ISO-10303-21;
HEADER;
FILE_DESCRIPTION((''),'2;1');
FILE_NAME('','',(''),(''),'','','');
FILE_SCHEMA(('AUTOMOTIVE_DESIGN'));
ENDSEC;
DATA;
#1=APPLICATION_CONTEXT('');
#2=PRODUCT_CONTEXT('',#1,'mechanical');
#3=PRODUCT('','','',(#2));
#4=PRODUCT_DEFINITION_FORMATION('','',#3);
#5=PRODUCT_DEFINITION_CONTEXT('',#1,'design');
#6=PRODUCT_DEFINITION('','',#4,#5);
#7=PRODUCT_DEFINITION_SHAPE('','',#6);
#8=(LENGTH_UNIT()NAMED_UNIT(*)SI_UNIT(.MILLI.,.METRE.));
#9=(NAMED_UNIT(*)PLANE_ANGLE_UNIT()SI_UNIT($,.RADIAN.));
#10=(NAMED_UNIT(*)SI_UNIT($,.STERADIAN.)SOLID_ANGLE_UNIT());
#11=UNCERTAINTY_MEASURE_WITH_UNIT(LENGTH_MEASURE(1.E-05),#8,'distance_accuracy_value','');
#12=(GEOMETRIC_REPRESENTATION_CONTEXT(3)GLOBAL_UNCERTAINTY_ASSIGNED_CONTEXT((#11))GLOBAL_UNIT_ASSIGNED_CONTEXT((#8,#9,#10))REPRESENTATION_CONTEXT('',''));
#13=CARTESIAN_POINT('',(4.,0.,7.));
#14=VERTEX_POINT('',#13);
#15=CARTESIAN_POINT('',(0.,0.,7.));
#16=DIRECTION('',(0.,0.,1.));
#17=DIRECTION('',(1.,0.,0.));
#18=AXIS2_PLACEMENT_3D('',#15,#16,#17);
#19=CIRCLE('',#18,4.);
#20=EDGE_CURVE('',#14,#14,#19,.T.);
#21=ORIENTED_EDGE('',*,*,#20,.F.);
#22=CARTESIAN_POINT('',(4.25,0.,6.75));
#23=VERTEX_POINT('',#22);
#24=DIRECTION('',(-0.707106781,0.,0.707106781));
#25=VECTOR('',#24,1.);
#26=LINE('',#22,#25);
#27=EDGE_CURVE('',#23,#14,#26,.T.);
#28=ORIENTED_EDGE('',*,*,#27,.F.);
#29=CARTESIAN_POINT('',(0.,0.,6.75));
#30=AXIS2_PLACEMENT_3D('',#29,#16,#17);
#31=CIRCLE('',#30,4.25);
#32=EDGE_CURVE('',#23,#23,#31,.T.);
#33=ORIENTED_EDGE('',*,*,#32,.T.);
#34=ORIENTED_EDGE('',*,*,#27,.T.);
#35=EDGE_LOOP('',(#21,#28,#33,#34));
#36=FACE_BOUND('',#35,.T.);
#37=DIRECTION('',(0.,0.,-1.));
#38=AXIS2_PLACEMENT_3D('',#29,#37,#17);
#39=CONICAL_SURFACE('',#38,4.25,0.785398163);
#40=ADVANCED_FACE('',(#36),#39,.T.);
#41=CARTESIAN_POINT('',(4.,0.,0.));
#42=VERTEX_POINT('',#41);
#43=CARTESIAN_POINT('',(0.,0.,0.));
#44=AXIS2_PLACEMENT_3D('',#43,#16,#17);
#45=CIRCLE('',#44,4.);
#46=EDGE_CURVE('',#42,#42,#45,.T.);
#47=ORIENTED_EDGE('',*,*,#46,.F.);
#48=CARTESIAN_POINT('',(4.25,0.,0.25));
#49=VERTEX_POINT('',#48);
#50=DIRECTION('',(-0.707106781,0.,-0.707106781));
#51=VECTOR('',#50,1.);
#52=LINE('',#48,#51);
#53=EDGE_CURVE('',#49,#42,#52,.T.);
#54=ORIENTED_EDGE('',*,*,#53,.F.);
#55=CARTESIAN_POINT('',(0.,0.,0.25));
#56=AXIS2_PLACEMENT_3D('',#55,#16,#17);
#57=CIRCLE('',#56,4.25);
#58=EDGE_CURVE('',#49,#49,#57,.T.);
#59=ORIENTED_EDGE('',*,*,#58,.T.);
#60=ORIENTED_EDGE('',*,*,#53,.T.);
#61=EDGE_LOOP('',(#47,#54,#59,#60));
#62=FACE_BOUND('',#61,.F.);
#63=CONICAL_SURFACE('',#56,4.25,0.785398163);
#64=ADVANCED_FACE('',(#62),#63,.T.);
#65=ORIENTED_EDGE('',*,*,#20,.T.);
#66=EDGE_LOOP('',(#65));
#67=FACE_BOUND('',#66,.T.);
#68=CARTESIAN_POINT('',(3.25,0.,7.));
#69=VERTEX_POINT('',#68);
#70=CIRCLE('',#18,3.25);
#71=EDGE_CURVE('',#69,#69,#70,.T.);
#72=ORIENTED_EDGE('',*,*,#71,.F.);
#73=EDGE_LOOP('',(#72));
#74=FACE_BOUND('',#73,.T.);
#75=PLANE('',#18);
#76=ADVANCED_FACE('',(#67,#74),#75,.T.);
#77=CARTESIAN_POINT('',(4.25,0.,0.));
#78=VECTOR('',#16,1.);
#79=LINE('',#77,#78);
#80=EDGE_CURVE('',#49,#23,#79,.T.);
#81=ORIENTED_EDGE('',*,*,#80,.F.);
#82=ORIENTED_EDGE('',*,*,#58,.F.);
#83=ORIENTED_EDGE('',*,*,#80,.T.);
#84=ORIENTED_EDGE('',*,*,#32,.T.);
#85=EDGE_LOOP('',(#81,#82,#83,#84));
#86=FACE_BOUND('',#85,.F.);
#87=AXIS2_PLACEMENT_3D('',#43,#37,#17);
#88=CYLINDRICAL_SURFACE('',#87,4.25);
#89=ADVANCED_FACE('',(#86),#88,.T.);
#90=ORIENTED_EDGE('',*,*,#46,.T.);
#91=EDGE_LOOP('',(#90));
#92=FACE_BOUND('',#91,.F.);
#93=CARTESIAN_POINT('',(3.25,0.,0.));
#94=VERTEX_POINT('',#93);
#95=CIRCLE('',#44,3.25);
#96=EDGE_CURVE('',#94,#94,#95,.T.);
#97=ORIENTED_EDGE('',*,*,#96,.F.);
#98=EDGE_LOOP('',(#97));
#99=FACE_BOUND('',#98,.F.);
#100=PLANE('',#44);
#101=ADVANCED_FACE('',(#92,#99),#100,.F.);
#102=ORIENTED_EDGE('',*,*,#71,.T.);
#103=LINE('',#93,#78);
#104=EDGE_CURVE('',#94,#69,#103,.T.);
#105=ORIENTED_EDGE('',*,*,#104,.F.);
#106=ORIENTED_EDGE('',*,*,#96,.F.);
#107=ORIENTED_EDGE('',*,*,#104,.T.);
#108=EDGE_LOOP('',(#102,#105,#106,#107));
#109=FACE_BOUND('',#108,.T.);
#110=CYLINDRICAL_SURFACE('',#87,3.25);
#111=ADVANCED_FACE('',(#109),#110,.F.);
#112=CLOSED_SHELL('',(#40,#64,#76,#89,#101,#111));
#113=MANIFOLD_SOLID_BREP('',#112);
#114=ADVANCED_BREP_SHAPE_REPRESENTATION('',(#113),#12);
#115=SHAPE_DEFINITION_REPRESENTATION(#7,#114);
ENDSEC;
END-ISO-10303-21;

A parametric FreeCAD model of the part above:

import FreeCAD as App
import Part
import Sketcher
from FreeCAD import Vector


def edges_at(feature, points):
    """Names of the edges that pass closest to the given points."""
    edges = feature.Shape.Edges
    near = lambda p: min(range(len(edges)), key=lambda i: edges[i].distToShape(Part.Vertex(*p))[0])
    return sorted({f"Edge{near(p) + 1}" for p in points})

doc = App.newDocument("Part")
body = doc.addObject("PartDesign::Body", "Body")

sketch1 = body.newObject("Sketcher::SketchObject", "Sketch")
sketch1.AttachmentSupport = (doc.getObject("XY_Plane"), [""])
sketch1.MapMode = "FlatFace"
sketch1.addGeometry([
    Part.Circle(Vector(0, 0, 0), Vector(0, 0, 1), 4.25),
    Part.Circle(Vector(0, 0, 0), Vector(0, 0, 1), 3.25),
], False)
sketch1.addConstraint([
    Sketcher.Constraint("Coincident", 0, 3, -1, 1),
    Sketcher.Constraint("Coincident", 1, 3, -1, 1),
    Sketcher.Constraint("Diameter", 0, 8.5),
    Sketcher.Constraint("Diameter", 1, 6.5),
])
pad1 = body.newObject("PartDesign::Pad", "Pad")
pad1.Profile = sketch1
pad1.Length = 7
doc.recompute()

chamfer = body.newObject("PartDesign::Chamfer", "Chamfer")
chamfer.Base = (pad1, edges_at(pad1, [(-4.25, 0, 7), (-4.25, 0, 0)]))
chamfer.Size = 0.25

doc.recompute()
